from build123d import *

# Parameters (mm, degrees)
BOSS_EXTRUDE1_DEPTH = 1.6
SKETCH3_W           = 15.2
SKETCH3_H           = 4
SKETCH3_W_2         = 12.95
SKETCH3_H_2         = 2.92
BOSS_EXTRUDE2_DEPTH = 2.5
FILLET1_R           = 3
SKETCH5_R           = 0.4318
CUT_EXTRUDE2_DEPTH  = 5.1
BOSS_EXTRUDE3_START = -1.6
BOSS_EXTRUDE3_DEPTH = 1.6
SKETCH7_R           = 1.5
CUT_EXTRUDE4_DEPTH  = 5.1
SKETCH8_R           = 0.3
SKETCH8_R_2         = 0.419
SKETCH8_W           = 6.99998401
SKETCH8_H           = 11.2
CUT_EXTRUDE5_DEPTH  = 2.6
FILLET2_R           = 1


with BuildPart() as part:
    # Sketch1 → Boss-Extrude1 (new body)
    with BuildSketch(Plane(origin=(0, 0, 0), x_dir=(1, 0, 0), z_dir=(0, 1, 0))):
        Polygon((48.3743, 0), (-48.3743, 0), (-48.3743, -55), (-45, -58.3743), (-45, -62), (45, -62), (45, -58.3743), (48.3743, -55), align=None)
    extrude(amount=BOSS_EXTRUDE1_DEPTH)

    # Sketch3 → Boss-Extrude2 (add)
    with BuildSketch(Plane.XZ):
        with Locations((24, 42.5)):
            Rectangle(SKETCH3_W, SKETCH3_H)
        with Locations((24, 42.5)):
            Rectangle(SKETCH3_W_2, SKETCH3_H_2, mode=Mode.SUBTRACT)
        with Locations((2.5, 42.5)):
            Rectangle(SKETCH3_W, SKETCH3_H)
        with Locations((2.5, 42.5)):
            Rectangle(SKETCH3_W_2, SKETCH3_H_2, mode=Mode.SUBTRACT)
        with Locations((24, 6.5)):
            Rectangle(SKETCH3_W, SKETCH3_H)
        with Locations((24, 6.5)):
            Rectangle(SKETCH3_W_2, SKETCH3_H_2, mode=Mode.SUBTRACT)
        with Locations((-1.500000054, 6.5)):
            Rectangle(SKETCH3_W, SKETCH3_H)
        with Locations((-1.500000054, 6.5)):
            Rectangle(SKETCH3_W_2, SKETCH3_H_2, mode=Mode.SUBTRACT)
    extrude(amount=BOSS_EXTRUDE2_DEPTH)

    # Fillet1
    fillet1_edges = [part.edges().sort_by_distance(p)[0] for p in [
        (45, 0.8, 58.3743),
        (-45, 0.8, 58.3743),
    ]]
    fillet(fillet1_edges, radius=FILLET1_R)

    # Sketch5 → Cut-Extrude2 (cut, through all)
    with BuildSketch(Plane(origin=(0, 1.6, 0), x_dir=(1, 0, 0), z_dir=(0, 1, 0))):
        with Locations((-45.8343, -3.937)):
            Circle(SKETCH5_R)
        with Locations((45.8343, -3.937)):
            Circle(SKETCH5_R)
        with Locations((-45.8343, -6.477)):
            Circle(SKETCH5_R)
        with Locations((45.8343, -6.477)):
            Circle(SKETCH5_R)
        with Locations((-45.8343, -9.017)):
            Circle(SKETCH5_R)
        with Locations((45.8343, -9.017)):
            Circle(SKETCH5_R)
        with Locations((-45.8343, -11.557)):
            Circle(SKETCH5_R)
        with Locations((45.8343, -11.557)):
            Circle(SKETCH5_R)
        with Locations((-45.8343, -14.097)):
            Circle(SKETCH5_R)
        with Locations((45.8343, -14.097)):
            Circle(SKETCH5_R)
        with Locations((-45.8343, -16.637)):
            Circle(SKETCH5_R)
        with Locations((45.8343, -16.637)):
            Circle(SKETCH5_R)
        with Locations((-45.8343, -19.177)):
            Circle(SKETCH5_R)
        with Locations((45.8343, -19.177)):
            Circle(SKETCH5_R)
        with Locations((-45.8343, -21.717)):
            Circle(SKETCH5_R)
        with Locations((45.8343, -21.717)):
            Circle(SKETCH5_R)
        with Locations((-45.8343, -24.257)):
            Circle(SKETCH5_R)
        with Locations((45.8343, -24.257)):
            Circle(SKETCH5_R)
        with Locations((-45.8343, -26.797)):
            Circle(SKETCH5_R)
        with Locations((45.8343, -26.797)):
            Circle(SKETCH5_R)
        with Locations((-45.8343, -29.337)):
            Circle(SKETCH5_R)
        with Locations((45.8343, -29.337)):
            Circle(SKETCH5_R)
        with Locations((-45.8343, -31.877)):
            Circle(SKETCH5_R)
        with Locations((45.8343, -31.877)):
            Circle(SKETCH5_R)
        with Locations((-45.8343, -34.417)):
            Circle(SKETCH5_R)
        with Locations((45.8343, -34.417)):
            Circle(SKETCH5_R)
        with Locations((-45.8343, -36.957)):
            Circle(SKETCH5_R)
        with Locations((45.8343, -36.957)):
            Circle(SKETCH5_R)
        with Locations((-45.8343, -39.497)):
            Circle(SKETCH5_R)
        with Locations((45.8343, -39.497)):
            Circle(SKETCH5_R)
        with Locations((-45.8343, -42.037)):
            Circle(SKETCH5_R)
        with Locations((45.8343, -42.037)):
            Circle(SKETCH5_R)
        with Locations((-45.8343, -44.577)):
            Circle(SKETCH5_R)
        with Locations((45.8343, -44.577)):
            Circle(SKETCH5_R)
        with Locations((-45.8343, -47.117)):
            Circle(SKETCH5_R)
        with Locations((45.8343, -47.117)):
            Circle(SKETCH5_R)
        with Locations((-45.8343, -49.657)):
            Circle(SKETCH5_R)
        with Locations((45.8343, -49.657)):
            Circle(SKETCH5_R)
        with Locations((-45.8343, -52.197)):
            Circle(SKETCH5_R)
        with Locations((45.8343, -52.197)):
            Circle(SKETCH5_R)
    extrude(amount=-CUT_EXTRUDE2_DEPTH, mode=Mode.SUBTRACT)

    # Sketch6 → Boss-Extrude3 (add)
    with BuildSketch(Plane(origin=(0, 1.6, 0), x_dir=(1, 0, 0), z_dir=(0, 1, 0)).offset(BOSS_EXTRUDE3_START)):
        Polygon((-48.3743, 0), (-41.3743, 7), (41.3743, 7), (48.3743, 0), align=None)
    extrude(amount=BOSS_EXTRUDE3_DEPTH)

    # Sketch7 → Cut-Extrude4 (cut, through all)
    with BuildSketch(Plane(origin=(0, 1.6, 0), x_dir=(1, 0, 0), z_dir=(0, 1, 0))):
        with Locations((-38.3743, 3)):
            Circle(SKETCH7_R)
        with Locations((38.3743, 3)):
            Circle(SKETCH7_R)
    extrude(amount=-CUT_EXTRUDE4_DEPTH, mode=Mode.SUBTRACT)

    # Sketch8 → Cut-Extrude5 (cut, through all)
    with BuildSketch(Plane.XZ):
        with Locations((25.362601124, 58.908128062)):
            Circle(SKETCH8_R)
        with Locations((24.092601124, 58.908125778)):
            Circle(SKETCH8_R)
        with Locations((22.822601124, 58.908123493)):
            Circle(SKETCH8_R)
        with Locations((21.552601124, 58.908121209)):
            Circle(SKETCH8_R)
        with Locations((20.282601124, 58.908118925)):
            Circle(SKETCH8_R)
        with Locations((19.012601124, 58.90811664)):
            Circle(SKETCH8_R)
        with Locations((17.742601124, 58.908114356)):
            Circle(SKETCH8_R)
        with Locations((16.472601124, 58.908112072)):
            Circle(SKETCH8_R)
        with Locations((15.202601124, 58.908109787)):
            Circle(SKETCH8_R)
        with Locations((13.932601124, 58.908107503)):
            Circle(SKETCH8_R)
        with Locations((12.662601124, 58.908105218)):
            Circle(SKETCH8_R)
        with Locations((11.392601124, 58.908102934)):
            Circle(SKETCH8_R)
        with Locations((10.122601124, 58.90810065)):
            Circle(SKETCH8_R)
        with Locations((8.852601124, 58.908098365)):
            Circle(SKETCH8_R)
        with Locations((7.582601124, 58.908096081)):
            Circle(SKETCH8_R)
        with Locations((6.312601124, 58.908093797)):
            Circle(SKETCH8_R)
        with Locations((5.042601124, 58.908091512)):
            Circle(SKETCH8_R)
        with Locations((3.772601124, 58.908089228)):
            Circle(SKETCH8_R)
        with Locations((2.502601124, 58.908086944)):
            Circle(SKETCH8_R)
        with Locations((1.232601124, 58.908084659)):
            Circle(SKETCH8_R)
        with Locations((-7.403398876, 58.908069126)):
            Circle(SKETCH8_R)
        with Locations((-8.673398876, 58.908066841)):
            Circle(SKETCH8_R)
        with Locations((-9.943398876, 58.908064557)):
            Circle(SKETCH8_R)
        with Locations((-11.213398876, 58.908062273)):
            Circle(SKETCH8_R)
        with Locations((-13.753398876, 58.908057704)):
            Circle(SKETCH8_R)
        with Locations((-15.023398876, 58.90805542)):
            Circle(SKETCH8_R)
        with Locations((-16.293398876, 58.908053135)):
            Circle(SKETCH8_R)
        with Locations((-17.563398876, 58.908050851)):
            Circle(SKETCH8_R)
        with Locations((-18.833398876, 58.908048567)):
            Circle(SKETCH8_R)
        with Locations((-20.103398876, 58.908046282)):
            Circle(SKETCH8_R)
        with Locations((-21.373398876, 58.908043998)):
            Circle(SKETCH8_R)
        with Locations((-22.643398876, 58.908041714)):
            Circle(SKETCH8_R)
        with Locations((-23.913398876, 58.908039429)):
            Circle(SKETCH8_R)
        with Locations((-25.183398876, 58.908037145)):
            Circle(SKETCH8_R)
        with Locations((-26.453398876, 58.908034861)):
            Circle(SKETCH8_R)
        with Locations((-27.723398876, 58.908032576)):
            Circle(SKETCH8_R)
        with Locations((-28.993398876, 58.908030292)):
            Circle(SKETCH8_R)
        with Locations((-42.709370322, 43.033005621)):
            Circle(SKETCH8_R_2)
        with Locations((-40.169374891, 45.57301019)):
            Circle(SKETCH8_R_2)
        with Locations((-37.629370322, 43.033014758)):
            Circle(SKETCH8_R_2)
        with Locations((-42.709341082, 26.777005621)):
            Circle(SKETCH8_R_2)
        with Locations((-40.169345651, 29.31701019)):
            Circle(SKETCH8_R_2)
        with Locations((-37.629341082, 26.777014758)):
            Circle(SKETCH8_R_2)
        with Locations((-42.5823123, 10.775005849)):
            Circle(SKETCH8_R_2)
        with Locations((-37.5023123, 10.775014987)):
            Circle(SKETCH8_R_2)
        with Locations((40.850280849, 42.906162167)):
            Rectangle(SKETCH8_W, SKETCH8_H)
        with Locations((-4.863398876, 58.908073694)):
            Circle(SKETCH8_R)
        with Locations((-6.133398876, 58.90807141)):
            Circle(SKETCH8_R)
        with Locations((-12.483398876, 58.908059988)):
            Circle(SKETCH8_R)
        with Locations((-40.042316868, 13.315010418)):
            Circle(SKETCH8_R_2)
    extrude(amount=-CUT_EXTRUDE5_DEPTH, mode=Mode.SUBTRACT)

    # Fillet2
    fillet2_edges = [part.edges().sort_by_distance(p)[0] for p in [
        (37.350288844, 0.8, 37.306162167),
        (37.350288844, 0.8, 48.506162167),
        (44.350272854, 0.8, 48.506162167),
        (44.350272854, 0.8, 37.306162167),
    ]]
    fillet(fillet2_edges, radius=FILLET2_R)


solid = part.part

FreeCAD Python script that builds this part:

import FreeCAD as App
import Part
import Sketcher


def edges_at(feature, points):
    """Names of the edges that pass closest to the given points."""
    edges = feature.Shape.Edges
    near = lambda p: min(range(len(edges)), key=lambda i: edges[i].distToShape(Part.Vertex(*p))[0])
    return sorted({f"Edge{near(p) + 1}" for p in points})

doc = App.newDocument("Part")
body = doc.addObject("PartDesign::Body", "Body")

sketch1 = body.newObject("Sketcher::SketchObject", "Sketch")
sketch1.AttachmentSupport = (doc.getObject("XZ_Plane"), [""])
sketch1.MapMode = "FlatFace"
sketch1.addGeometry([
    Part.LineSegment(App.Vector(48.3743, 0, 0), App.Vector(-48.3743, 0, 0)),
    Part.LineSegment(App.Vector(-48.3743, 0, 0), App.Vector(-48.3743, 55, 0)),
    Part.LineSegment(App.Vector(-48.3743, 55, 0), App.Vector(-45, 58.3743, 0)),
    Part.LineSegment(App.Vector(-45, 58.3743, 0), App.Vector(-45, 62, 0)),
    Part.LineSegment(App.Vector(-45, 62, 0), App.Vector(45, 62, 0)),
    Part.LineSegment(App.Vector(45, 62, 0), App.Vector(45, 58.3743, 0)),
    Part.LineSegment(App.Vector(45, 58.3743, 0), App.Vector(48.3743, 55, 0)),
    Part.LineSegment(App.Vector(48.3743, 55, 0), App.Vector(48.3743, 0, 0)),
], False)
sketch1.addConstraint([
    Sketcher.Constraint("Coincident", 0, 2, 1, 1),
    Sketcher.Constraint("Coincident", 1, 2, 2, 1),
    Sketcher.Constraint("Coincident", 2, 2, 3, 1),
    Sketcher.Constraint("Coincident", 3, 2, 4, 1),
    Sketcher.Constraint("Coincident", 4, 2, 5, 1),
    Sketcher.Constraint("Coincident", 5, 2, 6, 1),
    Sketcher.Constraint("Coincident", 6, 2, 7, 1),
    Sketcher.Constraint("Coincident", 7, 2, 0, 1),
    Sketcher.Constraint("Horizontal", 0),
    Sketcher.Constraint("Vertical", 1),
    Sketcher.Constraint("Vertical", 3),
    Sketcher.Constraint("Horizontal", 4),
    Sketcher.Constraint("Vertical", 5),
    Sketcher.Constraint("Vertical", 7),
    Sketcher.Constraint("Symmetric", 0, 2, 7, 2, -1, 1),
    Sketcher.Constraint("Symmetric", 2, 2, 5, 2, -2),
    Sketcher.Constraint("Perpendicular", 2, 6),
    Sketcher.Constraint("Horizontal", 1, 2, 6, 2),
    Sketcher.Constraint("DistanceX", 4, 1, 4, 2, 90.0),
    Sketcher.Constraint("DistanceY", 1, 1, 1, 2, 55.0),
    Sketcher.Constraint("DistanceY", -1, 1, 3, 2, 62.0),
    Sketcher.Constraint("DistanceX", 0, 2, 0, 1, 96.7486),
])
pad1 = body.newObject("PartDesign::Pad", "Pad")
pad1.Profile = sketch1
pad1.Length = 1.6
pad1.Reversed = True

sketch2 = body.newObject("Sketcher::SketchObject", "Sketch001")
sketch2.AttachmentSupport = (doc.getObject("XZ_Plane"), [""])
sketch2.MapMode = "FlatFace"
sketch2.addGeometry([
    Part.LineSegment(App.Vector(16.4, 44.5, 0), App.Vector(16.4, 40.5, 0)),
    Part.LineSegment(App.Vector(16.4, 40.5, 0), App.Vector(31.6, 40.5, 0)),
    Part.LineSegment(App.Vector(31.6, 40.5, 0), App.Vector(31.6, 44.5, 0)),
    Part.LineSegment(App.Vector(31.6, 44.5, 0), App.Vector(16.4, 44.5, 0)),
    Part.LineSegment(App.Vector(30.475, 41.04, 0), App.Vector(17.525, 41.04, 0)),
    Part.LineSegment(App.Vector(17.525, 41.04, 0), App.Vector(17.525, 43.96, 0)),
    Part.LineSegment(App.Vector(17.525, 43.96, 0), App.Vector(30.475, 43.96, 0)),
    Part.LineSegment(App.Vector(30.475, 43.96, 0), App.Vector(30.475, 41.04, 0)),
    Part.LineSegment(App.Vector(-5.1, 44.5, 0), App.Vector(-5.1, 40.5, 0)),
    Part.LineSegment(App.Vector(-5.1, 40.5, 0), App.Vector(10.1, 40.5, 0)),
    Part.LineSegment(App.Vector(10.1, 40.5, 0), App.Vector(10.1, 44.5, 0)),
    Part.LineSegment(App.Vector(10.1, 44.5, 0), App.Vector(-5.1, 44.5, 0)),
    Part.LineSegment(App.Vector(8.975, 41.04, 0), App.Vector(-3.975, 41.04, 0)),
    Part.LineSegment(App.Vector(-3.975, 41.04, 0), App.Vector(-3.975, 43.96, 0)),
    Part.LineSegment(App.Vector(-3.975, 43.96, 0), App.Vector(8.975, 43.96, 0)),
    Part.LineSegment(App.Vector(8.975, 43.96, 0), App.Vector(8.975, 41.04, 0)),
    Part.LineSegment(App.Vector(16.4, 8.5, 0), App.Vector(16.4, 4.5, 0)),
    Part.LineSegment(App.Vector(16.4, 4.5, 0), App.Vector(31.6, 4.5, 0)),
    Part.LineSegment(App.Vector(31.6, 4.5, 0), App.Vector(31.6, 8.5, 0)),
    Part.LineSegment(App.Vector(31.6, 8.5, 0), App.Vector(16.4, 8.5, 0)),
    Part.LineSegment(App.Vector(30.475, 5.04, 0), App.Vector(17.525, 5.04, 0)),
    Part.LineSegment(App.Vector(17.525, 5.04, 0), App.Vector(17.525, 7.96, 0)),
    Part.LineSegment(App.Vector(17.525, 7.96, 0), App.Vector(30.475, 7.96, 0)),
    Part.LineSegment(App.Vector(30.475, 7.96, 0), App.Vector(30.475, 5.04, 0)),
    Part.LineSegment(App.Vector(-9.1, 8.5, 0), App.Vector(-9.1, 4.5, 0)),
    Part.LineSegment(App.Vector(-9.1, 4.5, 0), App.Vector(6.1, 4.5, 0)),
    Part.LineSegment(App.Vector(6.1, 4.5, 0), App.Vector(6.1, 8.5, 0)),
    Part.LineSegment(App.Vector(6.1, 8.5, 0), App.Vector(-9.1, 8.5, 0)),
    Part.LineSegment(App.Vector(4.975, 5.04, 0), App.Vector(-7.975, 5.04, 0)),
    Part.LineSegment(App.Vector(-7.975, 5.04, 0), App.Vector(-7.975, 7.96, 0)),
    Part.LineSegment(App.Vector(-7.975, 7.96, 0), App.Vector(4.975, 7.96, 0)),
    Part.LineSegment(App.Vector(4.975, 7.96, 0), App.Vector(4.975, 5.04, 0)),
], False)
sketch2.addConstraint([
    Sketcher.Constraint("Coincident", 0, 2, 1, 1),
    Sketcher.Constraint("Coincident", 1, 2, 2, 1),
    Sketcher.Constraint("Coincident", 2, 2, 3, 1),
    Sketcher.Constraint("Coincident", 3, 2, 0, 1),
    Sketcher.Constraint("Coincident", 4, 2, 5, 1),
    Sketcher.Constraint("Coincident", 5, 2, 6, 1),
    Sketcher.Constraint("Coincident", 6, 2, 7, 1),
    Sketcher.Constraint("Coincident", 7, 2, 4, 1),
    Sketcher.Constraint("Coincident", 8, 2, 9, 1),
    Sketcher.Constraint("Coincident", 9, 2, 10, 1),
    Sketcher.Constraint("Coincident", 10, 2, 11, 1),
    Sketcher.Constraint("Coincident", 11, 2, 8, 1),
    Sketcher.Constraint("Coincident", 12, 2, 13, 1),
    Sketcher.Constraint("Coincident", 13, 2, 14, 1),
    Sketcher.Constraint("Coincident", 14, 2, 15, 1),
    Sketcher.Constraint("Coincident", 15, 2, 12, 1),
    Sketcher.Constraint("Coincident", 16, 2, 17, 1),
    Sketcher.Constraint("Coincident", 17, 2, 18, 1),
    Sketcher.Constraint("Coincident", 18, 2, 19, 1),
    Sketcher.Constraint("Coincident", 19, 2, 16, 1),
    Sketcher.Constraint("Coincident", 20, 2, 21, 1),
    Sketcher.Constraint("Coincident", 21, 2, 22, 1),
    Sketcher.Constraint("Coincident", 22, 2, 23, 1),
    Sketcher.Constraint("Coincident", 23, 2, 20, 1),
    Sketcher.Constraint("Coincident", 24, 2, 25, 1),
    Sketcher.Constraint("Coincident", 25, 2, 26, 1),
    Sketcher.Constraint("Coincident", 26, 2, 27, 1),
    Sketcher.Constraint("Coincident", 27, 2, 24, 1),
    Sketcher.Constraint("Coincident", 28, 2, 29, 1),
    Sketcher.Constraint("Coincident", 29, 2, 30, 1),
    Sketcher.Constraint("Coincident", 30, 2, 31, 1),
    Sketcher.Constraint("Coincident", 31, 2, 28, 1),
    Sketcher.Constraint("Vertical", 0),
    Sketcher.Constraint("Horizontal", 1),
    Sketcher.Constraint("Vertical", 2),
    Sketcher.Constraint("Horizontal", 3),
    Sketcher.Constraint("Horizontal", 4),
    Sketcher.Constraint("Vertical", 5),
    Sketcher.Constraint("Horizontal", 6),
    Sketcher.Constraint("Vertical", 7),
    Sketcher.Constraint("Vertical", 8),
    Sketcher.Constraint("Horizontal", 9),
    Sketcher.Constraint("Vertical", 10),
    Sketcher.Constraint("Horizontal", 11),
    Sketcher.Constraint("Horizontal", 12),
    Sketcher.Constraint("Vertical", 13),
    Sketcher.Constraint("Horizontal", 14),
    Sketcher.Constraint("Vertical", 15),
    Sketcher.Constraint("Vertical", 16),
    Sketcher.Constraint("Horizontal", 17),
    Sketcher.Constraint("Vertical", 18),
    Sketcher.Constraint("Horizontal", 19),
    Sketcher.Constraint("Horizontal", 20),
    Sketcher.Constraint("Vertical", 21),
    Sketcher.Constraint("Horizontal", 22),
    Sketcher.Constraint("Vertical", 23),
    Sketcher.Constraint("Vertical", 24),
    Sketcher.Constraint("Horizontal", 25),
    Sketcher.Constraint("Vertical", 26),
    Sketcher.Constraint("Horizontal", 27),
    Sketcher.Constraint("Horizontal", 28),
    Sketcher.Constraint("Vertical", 29),
    Sketcher.Constraint("Horizontal", 30),
    Sketcher.Constraint("Vertical", 31),
    Sketcher.Constraint("Horizontal", 1, 2, 8, 2),
    Sketcher.Constraint("Horizontal", 3, 2, 10, 2),
    Sketcher.Constraint("Horizontal", 7, 2, 12, 2),
    Sketcher.Constraint("Horizontal", 6, 2, 13, 2),
    Sketcher.Constraint("Horizontal", 17, 2, 24, 2),
    Sketcher.Constraint("Horizontal", 19, 2, 26, 2),
    Sketcher.Constraint("Horizontal", 23, 2, 28, 2),
    Sketcher.Constraint("Horizontal", 22, 2, 29, 2),
    Sketcher.Constraint("Vertical", 3, 2, 16, 2),
    Sketcher.Constraint("Vertical", 2, 2, 17, 2),
    Sketcher.Constraint("Vertical", 5, 2, 20, 2),
    Sketcher.Constraint("Vertical", 7, 2, 22, 2),
    Sketcher.Constraint("Equal", 3, 9),
    Sketcher.Constraint("Equal", 6, 12),
    Sketcher.Constraint("Equal", 19, 25),
    Sketcher.Constraint("Equal", 22, 28),
    Sketcher.Constraint("Equal", 10, 16),
    Sketcher.Constraint("Equal", 15, 21),
    Sketcher.Constraint("DistanceY", 0, 2, 0, 1, 4.0),
    Sketcher.Constraint("DistanceX", 1, 1, 1, 2, 15.2),
    Sketcher.Constraint("DistanceY", 16, 2, 0, 2, 36.0),
    Sketcher.Constraint("DistanceX", 24, 2, 8, 2, 4.0),
    Sketcher.Constraint("DistanceX", 4, 2, 4, 1, 12.95),
    Sketcher.Constraint("DistanceY", 5, 1, 5, 2, 2.92),
    Sketcher.Constraint("DistanceX", -1, 1, 0, 2, 16.4),
    Sketcher.Constraint("DistanceY", -1, 1, 0, 2, 40.5),
    Sketcher.Constraint("DistanceX", 8, 2, -1, 1, 5.1),
    Sketcher.Constraint("DistanceY", -1, 1, 4, 2, 41.04),
    Sketcher.Constraint("DistanceY", -1, 1, 20, 2, 5.04),
    Sketcher.Constraint("DistanceX", 14, 2, 5, 2, 8.55),
    Sketcher.Constraint("DistanceX", 30, 2, 21, 2, 12.55),
    Sketcher.Constraint("DistanceX", -1, 1, 4, 2, 17.525),
])
pad2 = body.newObject("PartDesign::Pad", "Pad001")
pad2.Profile = sketch2
pad2.Length = 2.5
doc.recompute()

fillet = body.newObject("PartDesign::Fillet", "Fillet")
fillet.Base = (pad2, edges_at(pad2, [(45, 0.8, 58.374), (-45, 0.8, 58.374)]))
fillet.Radius = 3

sketch3 = body.newObject("Sketcher::SketchObject", "Sketch002")
sketch3.AttachmentSupport = (doc.getObject("XZ_Plane"), [""])
sketch3.MapMode = "FlatFace"
sketch3.AttachmentOffset = App.Placement(App.Vector(0, 0, -1.6), App.Rotation())
sketch3.addGeometry([
    Part.Circle(App.Vector(-45.8343, 3.937, 0), App.Vector(0, 0, 1), 0.4318),
    Part.Circle(App.Vector(45.8343, 3.937, 0), App.Vector(0, 0, 1), 0.4318),
    Part.Circle(App.Vector(-45.8343, 6.477, 0), App.Vector(0, 0, 1), 0.4318),
    Part.Circle(App.Vector(45.8343, 6.477, 0), App.Vector(0, 0, 1), 0.4318),
    Part.Circle(App.Vector(-45.8343, 9.017, 0), App.Vector(0, 0, 1), 0.4318),
    Part.Circle(App.Vector(45.8343, 9.017, 0), App.Vector(0, 0, 1), 0.4318),
    Part.Circle(App.Vector(-45.8343, 11.557, 0), App.Vector(0, 0, 1), 0.4318),
    Part.Circle(App.Vector(45.8343, 11.557, 0), App.Vector(0, 0, 1), 0.4318),
    Part.Circle(App.Vector(-45.8343, 14.097, 0), App.Vector(0, 0, 1), 0.4318),
    Part.Circle(App.Vector(45.8343, 14.097, 0), App.Vector(0, 0, 1), 0.4318),
    Part.Circle(App.Vector(-45.8343, 16.637, 0), App.Vector(0, 0, 1), 0.4318),
    Part.Circle(App.Vector(45.8343, 16.637, 0), App.Vector(0, 0, 1), 0.4318),
    Part.Circle(App.Vector(-45.8343, 19.177, 0), App.Vector(0, 0, 1), 0.4318),
    Part.Circle(App.Vector(45.8343, 19.177, 0), App.Vector(0, 0, 1), 0.4318),
    Part.Circle(App.Vector(-45.8343, 21.717, 0), App.Vector(0, 0, 1), 0.4318),
    Part.Circle(App.Vector(45.8343, 21.717, 0), App.Vector(0, 0, 1), 0.4318),
    Part.Circle(App.Vector(-45.8343, 24.257, 0), App.Vector(0, 0, 1), 0.4318),
    Part.Circle(App.Vector(45.8343, 24.257, 0), App.Vector(0, 0, 1), 0.4318),
    Part.Circle(App.Vector(-45.8343, 26.797, 0), App.Vector(0, 0, 1), 0.4318),
    Part.Circle(App.Vector(45.8343, 26.797, 0), App.Vector(0, 0, 1), 0.4318),
    Part.Circle(App.Vector(-45.8343, 29.337, 0), App.Vector(0, 0, 1), 0.4318),
    Part.Circle(App.Vector(45.8343, 29.337, 0), App.Vector(0, 0, 1), 0.4318),
    Part.Circle(App.Vector(-45.8343, 31.877, 0), App.Vector(0, 0, 1), 0.4318),
    Part.Circle(App.Vector(45.8343, 31.877, 0), App.Vector(0, 0, 1), 0.4318),
    Part.Circle(App.Vector(-45.8343, 34.417, 0), App.Vector(0, 0, 1), 0.4318),
    Part.Circle(App.Vector(45.8343, 34.417, 0), App.Vector(0, 0, 1), 0.4318),
    Part.Circle(App.Vector(-45.8343, 36.957, 0), App.Vector(0, 0, 1), 0.4318),
    Part.Circle(App.Vector(45.8343, 36.957, 0), App.Vector(0, 0, 1), 0.4318),
    Part.Circle(App.Vector(-45.8343, 39.497, 0), App.Vector(0, 0, 1), 0.4318),
    Part.Circle(App.Vector(45.8343, 39.497, 0), App.Vector(0, 0, 1), 0.4318),
    Part.Circle(App.Vector(-45.8343, 42.037, 0), App.Vector(0, 0, 1), 0.4318),
    Part.Circle(App.Vector(45.8343, 42.037, 0), App.Vector(0, 0, 1), 0.4318),
    Part.Circle(App.Vector(-45.8343, 44.577, 0), App.Vector(0, 0, 1), 0.4318),
    Part.Circle(App.Vector(45.8343, 44.577, 0), App.Vector(0, 0, 1), 0.4318),
    Part.Circle(App.Vector(-45.8343, 47.117, 0), App.Vector(0, 0, 1), 0.4318),
    Part.Circle(App.Vector(45.8343, 47.117, 0), App.Vector(0, 0, 1), 0.4318),
    Part.Circle(App.Vector(-45.8343, 49.657, 0), App.Vector(0, 0, 1), 0.4318),
    Part.Circle(App.Vector(45.8343, 49.657, 0), App.Vector(0, 0, 1), 0.4318),
    Part.Circle(App.Vector(-45.8343, 52.197, 0), App.Vector(0, 0, 1), 0.4318),
    Part.Circle(App.Vector(45.8343, 52.197, 0), App.Vector(0, 0, 1), 0.4318),
], False)
sketch3.addConstraint([
    Sketcher.Constraint("Equal", 0, 1),
    Sketcher.Constraint("Equal", 1, 2),
    Sketcher.Constraint("Equal", 2, 3),
    Sketcher.Constraint("Equal", 3, 4),
    Sketcher.Constraint("Equal", 4, 5),
    Sketcher.Constraint("Equal", 5, 6),
    Sketcher.Constraint("Equal", 6, 7),
    Sketcher.Constraint("Equal", 7, 8),
    Sketcher.Constraint("Equal", 8, 9),
    Sketcher.Constraint("Equal", 9, 10),
    Sketcher.Constraint("Equal", 10, 11),
    Sketcher.Constraint("Equal", 11, 12),
    Sketcher.Constraint("Equal", 12, 13),
    Sketcher.Constraint("Equal", 13, 14),
    Sketcher.Constraint("Equal", 14, 15),
    Sketcher.Constraint("Equal", 15, 16),
    Sketcher.Constraint("Equal", 16, 17),
    Sketcher.Constraint("Equal", 17, 18),
    Sketcher.Constraint("Equal", 18, 19),
    Sketcher.Constraint("Equal", 19, 20),
    Sketcher.Constraint("Equal", 20, 21),
    Sketcher.Constraint("Equal", 21, 22),
    Sketcher.Constraint("Equal", 22, 23),
    Sketcher.Constraint("Equal", 23, 24),
    Sketcher.Constraint("Equal", 24, 25),
    Sketcher.Constraint("Equal", 25, 26),
    Sketcher.Constraint("Equal", 26, 27),
    Sketcher.Constraint("Equal", 27, 28),
    Sketcher.Constraint("Equal", 28, 29),
    Sketcher.Constraint("Equal", 29, 30),
    Sketcher.Constraint("Equal", 30, 31),
    Sketcher.Constraint("Equal", 31, 32),
    Sketcher.Constraint("Equal", 32, 33),
    Sketcher.Constraint("Equal", 33, 34),
    Sketcher.Constraint("Equal", 34, 35),
    Sketcher.Constraint("Equal", 35, 36),
    Sketcher.Constraint("Equal", 36, 37),
    Sketcher.Constraint("Equal", 37, 38),
    Sketcher.Constraint("Equal", 38, 39),
    Sketcher.Constraint("Symmetric", 0, 3, 1, 3, -2),
    Sketcher.Constraint("Symmetric", 2, 3, 3, 3, -2),
    Sketcher.Constraint("Symmetric", 4, 3, 5, 3, -2),
    Sketcher.Constraint("Symmetric", 6, 3, 7, 3, -2),
    Sketcher.Constraint("Symmetric", 8, 3, 9, 3, -2),
    Sketcher.Constraint("Symmetric", 10, 3, 11, 3, -2),
    Sketcher.Constraint("Symmetric", 12, 3, 13, 3, -2),
    Sketcher.Constraint("Symmetric", 14, 3, 15, 3, -2),
    Sketcher.Constraint("Symmetric", 16, 3, 17, 3, -2),
    Sketcher.Constraint("Symmetric", 18, 3, 19, 3, -2),
    Sketcher.Constraint("Symmetric", 20, 3, 21, 3, -2),
    Sketcher.Constraint("Symmetric", 22, 3, 23, 3, -2),
    Sketcher.Constraint("Symmetric", 24, 3, 25, 3, -2),
    Sketcher.Constraint("Symmetric", 26, 3, 27, 3, -2),
    Sketcher.Constraint("Symmetric", 28, 3, 29, 3, -2),
    Sketcher.Constraint("Symmetric", 30, 3, 31, 3, -2),
    Sketcher.Constraint("Symmetric", 32, 3, 33, 3, -2),
    Sketcher.Constraint("Symmetric", 34, 3, 35, 3, -2),
    Sketcher.Constraint("Symmetric", 36, 3, 37, 3, -2),
    Sketcher.Constraint("Symmetric", 38, 3, 39, 3, -2),
    Sketcher.Constraint("Vertical", 0, 3, 2, 3),
    Sketcher.Constraint("Vertical", 2, 3, 4, 3),
    Sketcher.Constraint("Vertical", 4, 3, 6, 3),
    Sketcher.Constraint("Vertical", 6, 3, 8, 3),
    Sketcher.Constraint("Vertical", 8, 3, 10, 3),
    Sketcher.Constraint("Vertical", 10, 3, 12, 3),
    Sketcher.Constraint("Vertical", 12, 3, 14, 3),
    Sketcher.Constraint("Vertical", 14, 3, 16, 3),
    Sketcher.Constraint("Vertical", 16, 3, 18, 3),
    Sketcher.Constraint("Vertical", 18, 3, 20, 3),
    Sketcher.Constraint("Vertical", 20, 3, 22, 3),
    Sketcher.Constraint("Vertical", 22, 3, 24, 3),
    Sketcher.Constraint("Vertical", 24, 3, 26, 3),
    Sketcher.Constraint("Vertical", 26, 3, 28, 3),
    Sketcher.Constraint("Vertical", 28, 3, 30, 3),
    Sketcher.Constraint("Vertical", 30, 3, 32, 3),
    Sketcher.Constraint("Vertical", 32, 3, 34, 3),
    Sketcher.Constraint("Vertical", 34, 3, 36, 3),
    Sketcher.Constraint("Vertical", 36, 3, 38, 3),
    Sketcher.Constraint("Diameter", 0, 0.8636),
    Sketcher.Constraint("DistanceY", 0, 3, 10, 3, 12.7),
    Sketcher.Constraint("DistanceY", 2, 3, 12, 3, 12.7),
    Sketcher.Constraint("DistanceY", 4, 3, 14, 3, 12.7),
    Sketcher.Constraint("DistanceY", 6, 3, 16, 3, 12.7),
    Sketcher.Constraint("DistanceY", 8, 3, 18, 3, 12.7),
    Sketcher.Constraint("DistanceY", 10, 3, 20, 3, 12.7),
    Sketcher.Constraint("DistanceY", 12, 3, 22, 3, 12.7),
    Sketcher.Constraint("DistanceY", 14, 3, 24, 3, 12.7),
    Sketcher.Constraint("DistanceY", 16, 3, 26, 3, 12.7),
    Sketcher.Constraint("DistanceY", 18, 3, 28, 3, 12.7),
    Sketcher.Constraint("DistanceY", 20, 3, 30, 3, 12.7),
    Sketcher.Constraint("DistanceY", 22, 3, 32, 3, 12.7),
    Sketcher.Constraint("DistanceY", 24, 3, 34, 3, 12.7),
    Sketcher.Constraint("DistanceY", 26, 3, 36, 3, 12.7),
    Sketcher.Constraint("DistanceY", 28, 3, 38, 3, 12.7),
    Sketcher.Constraint("DistanceY", 0, 3, 2, 3, 2.54),
    Sketcher.Constraint("DistanceY", 2, 3, 4, 3, 2.54),
    Sketcher.Constraint("DistanceY", 4, 3, 6, 3, 2.54),
    Sketcher.Constraint("DistanceY", 6, 3, 8, 3, 2.54),
    Sketcher.Constraint("DistanceY", -1, 1, 0, 3, 3.937),
    Sketcher.Constraint("DistanceX", 0, 3, -1, 1, 45.8343),
])
pocket1 = body.newObject("PartDesign::Pocket", "Pocket")
pocket1.Profile = sketch3
pocket1.Type = "ThroughAll"
pocket1.Reversed = True

sketch4 = body.newObject("Sketcher::SketchObject", "Sketch003")
sketch4.AttachmentSupport = (doc.getObject("XZ_Plane"), [""])
sketch4.MapMode = "FlatFace"
sketch4.addGeometry([
    Part.LineSegment(App.Vector(-41.3743, -7, 0), App.Vector(-48.3743, 0, 0)),
    Part.LineSegment(App.Vector(-48.3743, 0, 0), App.Vector(48.3743, 0, 0)),
    Part.LineSegment(App.Vector(48.3743, 0, 0), App.Vector(41.3743, -7, 0)),
    Part.LineSegment(App.Vector(41.3743, -7, 0), App.Vector(-41.3743, -7, 0)),
], False)
sketch4.addConstraint([
    Sketcher.Constraint("Coincident", 0, 2, 1, 1),
    Sketcher.Constraint("Coincident", 1, 2, 2, 1),
    Sketcher.Constraint("Coincident", 2, 2, 3, 1),
    Sketcher.Constraint("Coincident", 3, 2, 0, 1),
    Sketcher.Constraint("Horizontal", 1),
    Sketcher.Constraint("Horizontal", 3),
    Sketcher.Constraint("Symmetric", 0, 2, 1, 2, -1, 1),
    Sketcher.Constraint("Perpendicular", 0, 2),
    Sketcher.Constraint("Equal", 0, 2),
    Sketcher.Constraint("DistanceY", 2, 2, -1, 1, 7.0),
    Sketcher.Constraint("DistanceX", 1, 1, 1, 2, 96.7486),
])
pad3 = body.newObject("PartDesign::Pad", "Pad002")
pad3.Profile = sketch4
pad3.Length = 1.6
pad3.Reversed = True

sketch5 = body.newObject("Sketcher::SketchObject", "Sketch004")
sketch5.AttachmentSupport = (doc.getObject("XZ_Plane"), [""])
sketch5.MapMode = "FlatFace"
sketch5.AttachmentOffset = App.Placement(App.Vector(0, 0, -1.6), App.Rotation())
sketch5.addGeometry([
    Part.Circle(App.Vector(-38.3743, -3, 0), App.Vector(0, 0, 1), 1.5),
    Part.Circle(App.Vector(38.3743, -3, 0), App.Vector(0, 0, 1), 1.5),
], False)
sketch5.addConstraint([
    Sketcher.Constraint("Equal", 0, 1),
    Sketcher.Constraint("Symmetric", 0, 3, 1, 3, -2),
    Sketcher.Constraint("Diameter", 0, 3.0),
    Sketcher.Constraint("DistanceY", 0, 3, -1, 1, 3.0),
    Sketcher.Constraint("DistanceX", 0, 3, -1, 1, 38.3743),
])
pocket2 = body.newObject("PartDesign::Pocket", "Pocket001")
pocket2.Profile = sketch5
pocket2.Type = "ThroughAll"
pocket2.Reversed = True

sketch6 = body.newObject("Sketcher::SketchObject", "Sketch005")
sketch6.AttachmentSupport = (doc.getObject("XZ_Plane"), [""])
sketch6.MapMode = "FlatFace"
sketch6.addGeometry([
    Part.Circle(App.Vector(25.362601, 58.908128, 0), App.Vector(0, 0, 1), 0.3),
    Part.Circle(App.Vector(24.092601, 58.908126, 0), App.Vector(0, 0, 1), 0.3),
    Part.Circle(App.Vector(22.822601, 58.908123, 0), App.Vector(0, 0, 1), 0.3),
    Part.Circle(App.Vector(21.552601, 58.908121, 0), App.Vector(0, 0, 1), 0.3),
    Part.Circle(App.Vector(20.282601, 58.908119, 0), App.Vector(0, 0, 1), 0.3),
    Part.Circle(App.Vector(19.012601, 58.908117, 0), App.Vector(0, 0, 1), 0.3),
    Part.Circle(App.Vector(17.742601, 58.908114, 0), App.Vector(0, 0, 1), 0.3),
    Part.Circle(App.Vector(16.472601, 58.908112, 0), App.Vector(0, 0, 1), 0.3),
    Part.Circle(App.Vector(15.202601, 58.90811, 0), App.Vector(0, 0, 1), 0.3),
    Part.Circle(App.Vector(13.932601, 58.908108, 0), App.Vector(0, 0, 1), 0.3),
    Part.Circle(App.Vector(12.662601, 58.908105, 0), App.Vector(0, 0, 1), 0.3),
    Part.Circle(App.Vector(11.392601, 58.908103, 0), App.Vector(0, 0, 1), 0.3),
    Part.Circle(App.Vector(10.122601, 58.908101, 0), App.Vector(0, 0, 1), 0.3),
    Part.Circle(App.Vector(8.852601, 58.908098, 0), App.Vector(0, 0, 1), 0.3),
    Part.Circle(App.Vector(7.582601, 58.908096, 0), App.Vector(0, 0, 1), 0.3),
    Part.Circle(App.Vector(6.312601, 58.908094, 0), App.Vector(0, 0, 1), 0.3),
    Part.Circle(App.Vector(5.042601, 58.908092, 0), App.Vector(0, 0, 1), 0.3),
    Part.Circle(App.Vector(3.772601, 58.908089, 0), App.Vector(0, 0, 1), 0.3),
    Part.Circle(App.Vector(2.502601, 58.908087, 0), App.Vector(0, 0, 1), 0.3),
    Part.Circle(App.Vector(1.232601, 58.908085, 0), App.Vector(0, 0, 1), 0.3),
    Part.Circle(App.Vector(-7.403399, 58.908069, 0), App.Vector(0, 0, 1), 0.3),
    Part.Circle(App.Vector(-8.673399, 58.908067, 0), App.Vector(0, 0, 1), 0.3),
    Part.Circle(App.Vector(-9.943399, 58.908065, 0), App.Vector(0, 0, 1), 0.3),
    Part.Circle(App.Vector(-11.213399, 58.908062, 0), App.Vector(0, 0, 1), 0.3),
    Part.Circle(App.Vector(-13.753399, 58.908058, 0), App.Vector(0, 0, 1), 0.3),
    Part.Circle(App.Vector(-15.023399, 58.908055, 0), App.Vector(0, 0, 1), 0.3),
    Part.Circle(App.Vector(-16.293399, 58.908053, 0), App.Vector(0, 0, 1), 0.3),
    Part.Circle(App.Vector(-17.563399, 58.908051, 0), App.Vector(0, 0, 1), 0.3),
    Part.Circle(App.Vector(-18.833399, 58.908049, 0), App.Vector(0, 0, 1), 0.3),
    Part.Circle(App.Vector(-20.103399, 58.908046, 0), App.Vector(0, 0, 1), 0.3),
    Part.Circle(App.Vector(-21.373399, 58.908044, 0), App.Vector(0, 0, 1), 0.3),
    Part.Circle(App.Vector(-22.643399, 58.908042, 0), App.Vector(0, 0, 1), 0.3),
    Part.Circle(App.Vector(-23.913399, 58.908039, 0), App.Vector(0, 0, 1), 0.3),
    Part.Circle(App.Vector(-25.183399, 58.908037, 0), App.Vector(0, 0, 1), 0.3),
    Part.Circle(App.Vector(-26.453399, 58.908035, 0), App.Vector(0, 0, 1), 0.3),
    Part.Circle(App.Vector(-27.723399, 58.908033, 0), App.Vector(0, 0, 1), 0.3),
    Part.Circle(App.Vector(-28.993399, 58.90803, 0), App.Vector(0, 0, 1), 0.3),
    Part.Circle(App.Vector(-42.70937, 43.033006, 0), App.Vector(0, 0, 1), 0.419),
    Part.Circle(App.Vector(-40.169375, 45.57301, 0), App.Vector(0, 0, 1), 0.419),
    Part.Circle(App.Vector(-37.62937, 43.033015, 0), App.Vector(0, 0, 1), 0.419),
    Part.Circle(App.Vector(-42.709341, 26.777006, 0), App.Vector(0, 0, 1), 0.419),
    Part.Circle(App.Vector(-40.169346, 29.31701, 0), App.Vector(0, 0, 1), 0.419),
    Part.Circle(App.Vector(-37.629341, 26.777015, 0), App.Vector(0, 0, 1), 0.419),
    Part.Circle(App.Vector(-42.582312, 10.775006, 0), App.Vector(0, 0, 1), 0.419),
    Part.Circle(App.Vector(-37.502312, 10.775015, 0), App.Vector(0, 0, 1), 0.419),
    Part.LineSegment(App.Vector(37.350289, 48.506162, 0), App.Vector(37.350289, 37.306162, 0)),
    Part.LineSegment(App.Vector(37.350289, 37.306162, 0), App.Vector(44.350273, 37.306162, 0)),
    Part.LineSegment(App.Vector(44.350273, 37.306162, 0), App.Vector(44.350273, 48.506162, 0)),
    Part.LineSegment(App.Vector(44.350273, 48.506162, 0), App.Vector(37.350289, 48.506162, 0)),
    Part.Circle(App.Vector(-4.863399, 58.908074, 0), App.Vector(0, 0, 1), 0.3),
    Part.Circle(App.Vector(-6.133399, 58.908071, 0), App.Vector(0, 0, 1), 0.3),
    Part.Circle(App.Vector(-12.483399, 58.90806, 0), App.Vector(0, 0, 1), 0.3),
    Part.Circle(App.Vector(-40.042317, 13.31501, 0), App.Vector(0, 0, 1), 0.419),
], False)
sketch6.addConstraint([
    Sketcher.Constraint("Coincident", 45, 2, 46, 1),
    Sketcher.Constraint("Coincident", 46, 2, 47, 1),
    Sketcher.Constraint("Coincident", 47, 2, 48, 1),
    Sketcher.Constraint("Coincident", 48, 2, 45, 1),
    Sketcher.Constraint("Vertical", 45),
    Sketcher.Constraint("Horizontal", 46),
    Sketcher.Constraint("Vertical", 47),
    Sketcher.Constraint("Horizontal", 48),
    Sketcher.Constraint("Equal", 0, 1),
    Sketcher.Constraint("Equal", 1, 2),
    Sketcher.Constraint("Equal", 2, 3),
    Sketcher.Constraint("Equal", 3, 4),
    Sketcher.Constraint("Equal", 4, 5),
    Sketcher.Constraint("Equal", 5, 6),
    Sketcher.Constraint("Equal", 6, 7),
    Sketcher.Constraint("Equal", 7, 8),
    Sketcher.Constraint("Equal", 8, 9),
    Sketcher.Constraint("Equal", 9, 10),
    Sketcher.Constraint("Equal", 10, 11),
    Sketcher.Constraint("Equal", 11, 12),
    Sketcher.Constraint("Equal", 12, 13),
    Sketcher.Constraint("Equal", 13, 14),
    Sketcher.Constraint("Equal", 14, 15),
    Sketcher.Constraint("Equal", 15, 16),
    Sketcher.Constraint("Equal", 16, 17),
    Sketcher.Constraint("Equal", 17, 18),
    Sketcher.Constraint("Equal", 18, 19),
    Sketcher.Constraint("Equal", 19, 20),
    Sketcher.Constraint("Equal", 20, 21),
    Sketcher.Constraint("Equal", 21, 22),
    Sketcher.Constraint("Equal", 22, 23),
    Sketcher.Constraint("Equal", 23, 24),
    Sketcher.Constraint("Equal", 24, 25),
    Sketcher.Constraint("Equal", 25, 26),
    Sketcher.Constraint("Equal", 26, 27),
    Sketcher.Constraint("Equal", 27, 28),
    Sketcher.Constraint("Equal", 28, 29),
    Sketcher.Constraint("Equal", 29, 30),
    Sketcher.Constraint("Equal", 30, 31),
    Sketcher.Constraint("Equal", 31, 32),
    Sketcher.Constraint("Equal", 32, 33),
    Sketcher.Constraint("Equal", 33, 34),
    Sketcher.Constraint("Equal", 34, 35),
    Sketcher.Constraint("Equal", 35, 36),
    Sketcher.Constraint("Equal", 37, 38),
    Sketcher.Constraint("Equal", 38, 39),
    Sketcher.Constraint("Equal", 39, 40),
    Sketcher.Constraint("Equal", 40, 41),
    Sketcher.Constraint("Equal", 41, 42),
    Sketcher.Constraint("Equal", 42, 43),
    Sketcher.Constraint("Equal", 43, 44),
    Sketcher.Constraint("Equal", 36, 49),
    Sketcher.Constraint("Equal", 49, 50),
    Sketcher.Constraint("Equal", 50, 51),
    Sketcher.Constraint("Equal", 44, 52),
    Sketcher.Constraint("Diameter", 0, 0.6),
    Sketcher.Constraint("Diameter", 37, 0.838),
    Sketcher.Constraint("DistanceY", 45, 2, 45, 1, 11.2),
    Sketcher.Constraint("DistanceX", 1, 3, 0, 3, 1.27),
    Sketcher.Constraint("DistanceX", 2, 3, 1, 3, 1.27),
    Sketcher.Constraint("DistanceX", 3, 3, 2, 3, 1.27),
    Sketcher.Constraint("DistanceX", 4, 3, 3, 3, 1.27),
    Sketcher.Constraint("DistanceX", 5, 3, 4, 3, 1.27),
    Sketcher.Constraint("DistanceX", 6, 3, 5, 3, 1.27),
    Sketcher.Constraint("DistanceX", 7, 3, 6, 3, 1.27),
    Sketcher.Constraint("DistanceX", 8, 3, 7, 3, 1.27),
    Sketcher.Constraint("DistanceX", 9, 3, 8, 3, 1.27),
    Sketcher.Constraint("DistanceX", 10, 3, 9, 3, 1.27),
    Sketcher.Constraint("DistanceX", 11, 3, 10, 3, 1.27),
    Sketcher.Constraint("DistanceX", 12, 3, 11, 3, 1.27),
    Sketcher.Constraint("DistanceX", 13, 3, 12, 3, 1.27),
    Sketcher.Constraint("DistanceX", 14, 3, 13, 3, 1.27),
    Sketcher.Constraint("DistanceX", 15, 3, 14, 3, 1.27),
    Sketcher.Constraint("DistanceX", 16, 3, 15, 3, 1.27),
    Sketcher.Constraint("DistanceX", 17, 3, 16, 3, 1.27),
    Sketcher.Constraint("DistanceX", 18, 3, 17, 3, 1.27),
    Sketcher.Constraint("DistanceX", 19, 3, 18, 3, 1.27),
    Sketcher.Constraint("DistanceX", 21, 3, 20, 3, 1.27),
    Sketcher.Constraint("DistanceX", 22, 3, 21, 3, 1.27),
    Sketcher.Constraint("DistanceX", 23, 3, 22, 3, 1.27),
    Sketcher.Constraint("DistanceX", 24, 3, 23, 3, 2.54),
    Sketcher.Constraint("DistanceX", 25, 3, 24, 3, 1.27),
    Sketcher.Constraint("DistanceX", 26, 3, 25, 3, 1.27),
    Sketcher.Constraint("DistanceX", 27, 3, 26, 3, 1.27),
    Sketcher.Constraint("DistanceX", 28, 3, 27, 3, 1.27),
    Sketcher.Constraint("DistanceX", 29, 3, 28, 3, 1.27),
    Sketcher.Constraint("DistanceX", 30, 3, 29, 3, 1.27),
    Sketcher.Constraint("DistanceX", 31, 3, 30, 3, 1.27),
    Sketcher.Constraint("DistanceX", 32, 3, 31, 3, 1.27),
    Sketcher.Constraint("DistanceX", 33, 3, 32, 3, 1.27),
    Sketcher.Constraint("DistanceX", 34, 3, 33, 3, 1.27),
    Sketcher.Constraint("DistanceX", 35, 3, 34, 3, 1.27),
    Sketcher.Constraint("DistanceX", 36, 3, 35, 3, 1.27),
    Sketcher.Constraint("DistanceX", 37, 3, 39, 3, 5.08),
    Sketcher.Constraint("DistanceX", 40, 3, 42, 3, 5.08),
    Sketcher.Constraint("DistanceX", 43, 3, 44, 3, 5.08),
    Sketcher.Constraint("DistanceX", 20, 3, 49, 3, 2.54),
    Sketcher.Constraint("DistanceX", 20, 3, 50, 3, 1.27),
    Sketcher.Constraint("DistanceX", 24, 3, 51, 3, 1.27),
    Sketcher.Constraint("DistanceX", 20, 3, 19, 3, 8.636),
    Sketcher.Constraint("DistanceY", 40, 3, 37, 3, 16.256),
    Sketcher.Constraint("DistanceY", 41, 3, 38, 3, 16.256),
    Sketcher.Constraint("DistanceY", 42, 3, 39, 3, 16.256),
    Sketcher.Constraint("DistanceY", 43, 3, 40, 3, 16.002),
    Sketcher.Constraint("DistanceY", 44, 3, 42, 3, 16.002),
    Sketcher.Constraint("DistanceY", 52, 3, 41, 3, 16.002),
    Sketcher.Constraint("DistanceX", -1, 1, 0, 3, 25.362601),
    Sketcher.Constraint("DistanceY", -1, 1, 12, 3, 58.908101),
    Sketcher.Constraint("DistanceY", -1, 1, 13, 3, 58.908098),
    Sketcher.Constraint("DistanceX", 46, 1, 46, 2, 6.999984),
    Sketcher.Constraint("DistanceY", -1, 1, 0, 3, 58.908128),
    Sketcher.Constraint("DistanceY", -1, 1, 3, 3, 58.908121),
    Sketcher.Constraint("DistanceY", -1, 1, 4, 3, 58.908119),
    Sketcher.Constraint("DistanceY", -1, 1, 8, 3, 58.90811),
    Sketcher.Constraint("DistanceY", -1, 1, 16, 3, 58.908092),
    Sketcher.Constraint("DistanceY", -1, 1, 17, 3, 58.908089),
    Sketcher.Constraint("DistanceY", -1, 1, 20, 3, 58.908069),
    Sketcher.Constraint("DistanceY", -1, 1, 27, 3, 58.908051),
    Sketcher.Constraint("DistanceY", -1, 1, 28, 3, 58.908049),
    Sketcher.Constraint("DistanceY", -1, 1, 31, 3, 58.908042),
    Sketcher.Constraint("DistanceY", -1, 1, 32, 3, 58.908039),
    Sketcher.Constraint("DistanceY", -1, 1, 36, 3, 58.90803),
    Sketcher.Constraint("DistanceX", 37, 3, -1, 1, 42.70937),
    Sketcher.Constraint("DistanceY", -1, 1, 38, 3, 45.57301),
    Sketcher.Constraint("DistanceX", 40, 3, -1, 1, 42.709341),
    Sketcher.Constraint("DistanceY", -1, 1, 50, 3, 58.908071),
    Sketcher.Constraint("DistanceY", -1, 1, 51, 3, 58.90806),
    Sketcher.Constraint("DistanceX", -1, 1, 45, 2, 37.350289),
    Sketcher.Constraint("DistanceY", 37, 3, 34, 3, 15.875029),
    Sketcher.Constraint("DistanceY", 37, 3, 33, 3, 15.875032),
    Sketcher.Constraint("DistanceY", 39, 3, 34, 3, 15.87502),
    Sketcher.Constraint("DistanceX", 40, 3, 43, 3, 0.127029),
    Sketcher.Constraint("DistanceX", 41, 3, 52, 3, 0.127029),
    Sketcher.Constraint("DistanceY", 45, 2, 2, 3, 21.601961),
    Sketcher.Constraint("DistanceY", 45, 2, 3, 3, 21.601959),
    Sketcher.Constraint("DistanceY", -1, 1, 1, 3, 58.908126),
    Sketcher.Constraint("DistanceY", -1, 1, 5, 3, 58.908117),
    Sketcher.Constraint("DistanceY", -1, 1, 6, 3, 58.908114),
    Sketcher.Constraint("DistanceY", -1, 1, 7, 3, 58.908112),
    Sketcher.Constraint("DistanceY", -1, 1, 9, 3, 58.908108),
    Sketcher.Constraint("DistanceY", -1, 1, 10, 3, 58.908105),
    Sketcher.Constraint("DistanceY", -1, 1, 11, 3, 58.908103),
    Sketcher.Constraint("DistanceY", -1, 1, 14, 3, 58.908096),
    Sketcher.Constraint("DistanceY", -1, 1, 15, 3, 58.908094),
    Sketcher.Constraint("DistanceY", -1, 1, 18, 3, 58.908087),
    Sketcher.Constraint("DistanceY", -1, 1, 19, 3, 58.908085),
    Sketcher.Constraint("DistanceY", -1, 1, 21, 3, 58.908067),
    Sketcher.Constraint("DistanceY", -1, 1, 22, 3, 58.908065),
    Sketcher.Constraint("DistanceY", -1, 1, 23, 3, 58.908062),
    Sketcher.Constraint("DistanceY", -1, 1, 24, 3, 58.908058),
    Sketcher.Constraint("DistanceY", -1, 1, 25, 3, 58.908055),
    Sketcher.Constraint("DistanceY", -1, 1, 26, 3, 58.908053),
    Sketcher.Constraint("DistanceY", -1, 1, 29, 3, 58.908046),
    Sketcher.Constraint("DistanceY", -1, 1, 30, 3, 58.908044),
    Sketcher.Constraint("DistanceY", -1, 1, 33, 3, 58.908037),
    Sketcher.Constraint("DistanceY", -1, 1, 35, 3, 58.908033),
    Sketcher.Constraint("DistanceX", 38, 3, -1, 1, 40.169375),
    Sketcher.Constraint("DistanceX", 41, 3, -1, 1, 40.169346),
    Sketcher.Constraint("DistanceY", -1, 1, 49, 3, 58.908074),
])
pocket3 = body.newObject("PartDesign::Pocket", "Pocket002")
pocket3.Profile = sketch6
pocket3.Type = "ThroughAll"
doc.recompute()

fillet2 = body.newObject("PartDesign::Fillet", "Fillet001")
fillet2.Base = (pocket3, edges_at(pocket3, [
    (37.35, 0.8, 37.306),
    (37.35, 0.8, 48.506),
    (44.35, 0.8, 48.506),
    (44.35, 0.8, 37.306),
]))
fillet2.Radius = 1

doc.recompute()
